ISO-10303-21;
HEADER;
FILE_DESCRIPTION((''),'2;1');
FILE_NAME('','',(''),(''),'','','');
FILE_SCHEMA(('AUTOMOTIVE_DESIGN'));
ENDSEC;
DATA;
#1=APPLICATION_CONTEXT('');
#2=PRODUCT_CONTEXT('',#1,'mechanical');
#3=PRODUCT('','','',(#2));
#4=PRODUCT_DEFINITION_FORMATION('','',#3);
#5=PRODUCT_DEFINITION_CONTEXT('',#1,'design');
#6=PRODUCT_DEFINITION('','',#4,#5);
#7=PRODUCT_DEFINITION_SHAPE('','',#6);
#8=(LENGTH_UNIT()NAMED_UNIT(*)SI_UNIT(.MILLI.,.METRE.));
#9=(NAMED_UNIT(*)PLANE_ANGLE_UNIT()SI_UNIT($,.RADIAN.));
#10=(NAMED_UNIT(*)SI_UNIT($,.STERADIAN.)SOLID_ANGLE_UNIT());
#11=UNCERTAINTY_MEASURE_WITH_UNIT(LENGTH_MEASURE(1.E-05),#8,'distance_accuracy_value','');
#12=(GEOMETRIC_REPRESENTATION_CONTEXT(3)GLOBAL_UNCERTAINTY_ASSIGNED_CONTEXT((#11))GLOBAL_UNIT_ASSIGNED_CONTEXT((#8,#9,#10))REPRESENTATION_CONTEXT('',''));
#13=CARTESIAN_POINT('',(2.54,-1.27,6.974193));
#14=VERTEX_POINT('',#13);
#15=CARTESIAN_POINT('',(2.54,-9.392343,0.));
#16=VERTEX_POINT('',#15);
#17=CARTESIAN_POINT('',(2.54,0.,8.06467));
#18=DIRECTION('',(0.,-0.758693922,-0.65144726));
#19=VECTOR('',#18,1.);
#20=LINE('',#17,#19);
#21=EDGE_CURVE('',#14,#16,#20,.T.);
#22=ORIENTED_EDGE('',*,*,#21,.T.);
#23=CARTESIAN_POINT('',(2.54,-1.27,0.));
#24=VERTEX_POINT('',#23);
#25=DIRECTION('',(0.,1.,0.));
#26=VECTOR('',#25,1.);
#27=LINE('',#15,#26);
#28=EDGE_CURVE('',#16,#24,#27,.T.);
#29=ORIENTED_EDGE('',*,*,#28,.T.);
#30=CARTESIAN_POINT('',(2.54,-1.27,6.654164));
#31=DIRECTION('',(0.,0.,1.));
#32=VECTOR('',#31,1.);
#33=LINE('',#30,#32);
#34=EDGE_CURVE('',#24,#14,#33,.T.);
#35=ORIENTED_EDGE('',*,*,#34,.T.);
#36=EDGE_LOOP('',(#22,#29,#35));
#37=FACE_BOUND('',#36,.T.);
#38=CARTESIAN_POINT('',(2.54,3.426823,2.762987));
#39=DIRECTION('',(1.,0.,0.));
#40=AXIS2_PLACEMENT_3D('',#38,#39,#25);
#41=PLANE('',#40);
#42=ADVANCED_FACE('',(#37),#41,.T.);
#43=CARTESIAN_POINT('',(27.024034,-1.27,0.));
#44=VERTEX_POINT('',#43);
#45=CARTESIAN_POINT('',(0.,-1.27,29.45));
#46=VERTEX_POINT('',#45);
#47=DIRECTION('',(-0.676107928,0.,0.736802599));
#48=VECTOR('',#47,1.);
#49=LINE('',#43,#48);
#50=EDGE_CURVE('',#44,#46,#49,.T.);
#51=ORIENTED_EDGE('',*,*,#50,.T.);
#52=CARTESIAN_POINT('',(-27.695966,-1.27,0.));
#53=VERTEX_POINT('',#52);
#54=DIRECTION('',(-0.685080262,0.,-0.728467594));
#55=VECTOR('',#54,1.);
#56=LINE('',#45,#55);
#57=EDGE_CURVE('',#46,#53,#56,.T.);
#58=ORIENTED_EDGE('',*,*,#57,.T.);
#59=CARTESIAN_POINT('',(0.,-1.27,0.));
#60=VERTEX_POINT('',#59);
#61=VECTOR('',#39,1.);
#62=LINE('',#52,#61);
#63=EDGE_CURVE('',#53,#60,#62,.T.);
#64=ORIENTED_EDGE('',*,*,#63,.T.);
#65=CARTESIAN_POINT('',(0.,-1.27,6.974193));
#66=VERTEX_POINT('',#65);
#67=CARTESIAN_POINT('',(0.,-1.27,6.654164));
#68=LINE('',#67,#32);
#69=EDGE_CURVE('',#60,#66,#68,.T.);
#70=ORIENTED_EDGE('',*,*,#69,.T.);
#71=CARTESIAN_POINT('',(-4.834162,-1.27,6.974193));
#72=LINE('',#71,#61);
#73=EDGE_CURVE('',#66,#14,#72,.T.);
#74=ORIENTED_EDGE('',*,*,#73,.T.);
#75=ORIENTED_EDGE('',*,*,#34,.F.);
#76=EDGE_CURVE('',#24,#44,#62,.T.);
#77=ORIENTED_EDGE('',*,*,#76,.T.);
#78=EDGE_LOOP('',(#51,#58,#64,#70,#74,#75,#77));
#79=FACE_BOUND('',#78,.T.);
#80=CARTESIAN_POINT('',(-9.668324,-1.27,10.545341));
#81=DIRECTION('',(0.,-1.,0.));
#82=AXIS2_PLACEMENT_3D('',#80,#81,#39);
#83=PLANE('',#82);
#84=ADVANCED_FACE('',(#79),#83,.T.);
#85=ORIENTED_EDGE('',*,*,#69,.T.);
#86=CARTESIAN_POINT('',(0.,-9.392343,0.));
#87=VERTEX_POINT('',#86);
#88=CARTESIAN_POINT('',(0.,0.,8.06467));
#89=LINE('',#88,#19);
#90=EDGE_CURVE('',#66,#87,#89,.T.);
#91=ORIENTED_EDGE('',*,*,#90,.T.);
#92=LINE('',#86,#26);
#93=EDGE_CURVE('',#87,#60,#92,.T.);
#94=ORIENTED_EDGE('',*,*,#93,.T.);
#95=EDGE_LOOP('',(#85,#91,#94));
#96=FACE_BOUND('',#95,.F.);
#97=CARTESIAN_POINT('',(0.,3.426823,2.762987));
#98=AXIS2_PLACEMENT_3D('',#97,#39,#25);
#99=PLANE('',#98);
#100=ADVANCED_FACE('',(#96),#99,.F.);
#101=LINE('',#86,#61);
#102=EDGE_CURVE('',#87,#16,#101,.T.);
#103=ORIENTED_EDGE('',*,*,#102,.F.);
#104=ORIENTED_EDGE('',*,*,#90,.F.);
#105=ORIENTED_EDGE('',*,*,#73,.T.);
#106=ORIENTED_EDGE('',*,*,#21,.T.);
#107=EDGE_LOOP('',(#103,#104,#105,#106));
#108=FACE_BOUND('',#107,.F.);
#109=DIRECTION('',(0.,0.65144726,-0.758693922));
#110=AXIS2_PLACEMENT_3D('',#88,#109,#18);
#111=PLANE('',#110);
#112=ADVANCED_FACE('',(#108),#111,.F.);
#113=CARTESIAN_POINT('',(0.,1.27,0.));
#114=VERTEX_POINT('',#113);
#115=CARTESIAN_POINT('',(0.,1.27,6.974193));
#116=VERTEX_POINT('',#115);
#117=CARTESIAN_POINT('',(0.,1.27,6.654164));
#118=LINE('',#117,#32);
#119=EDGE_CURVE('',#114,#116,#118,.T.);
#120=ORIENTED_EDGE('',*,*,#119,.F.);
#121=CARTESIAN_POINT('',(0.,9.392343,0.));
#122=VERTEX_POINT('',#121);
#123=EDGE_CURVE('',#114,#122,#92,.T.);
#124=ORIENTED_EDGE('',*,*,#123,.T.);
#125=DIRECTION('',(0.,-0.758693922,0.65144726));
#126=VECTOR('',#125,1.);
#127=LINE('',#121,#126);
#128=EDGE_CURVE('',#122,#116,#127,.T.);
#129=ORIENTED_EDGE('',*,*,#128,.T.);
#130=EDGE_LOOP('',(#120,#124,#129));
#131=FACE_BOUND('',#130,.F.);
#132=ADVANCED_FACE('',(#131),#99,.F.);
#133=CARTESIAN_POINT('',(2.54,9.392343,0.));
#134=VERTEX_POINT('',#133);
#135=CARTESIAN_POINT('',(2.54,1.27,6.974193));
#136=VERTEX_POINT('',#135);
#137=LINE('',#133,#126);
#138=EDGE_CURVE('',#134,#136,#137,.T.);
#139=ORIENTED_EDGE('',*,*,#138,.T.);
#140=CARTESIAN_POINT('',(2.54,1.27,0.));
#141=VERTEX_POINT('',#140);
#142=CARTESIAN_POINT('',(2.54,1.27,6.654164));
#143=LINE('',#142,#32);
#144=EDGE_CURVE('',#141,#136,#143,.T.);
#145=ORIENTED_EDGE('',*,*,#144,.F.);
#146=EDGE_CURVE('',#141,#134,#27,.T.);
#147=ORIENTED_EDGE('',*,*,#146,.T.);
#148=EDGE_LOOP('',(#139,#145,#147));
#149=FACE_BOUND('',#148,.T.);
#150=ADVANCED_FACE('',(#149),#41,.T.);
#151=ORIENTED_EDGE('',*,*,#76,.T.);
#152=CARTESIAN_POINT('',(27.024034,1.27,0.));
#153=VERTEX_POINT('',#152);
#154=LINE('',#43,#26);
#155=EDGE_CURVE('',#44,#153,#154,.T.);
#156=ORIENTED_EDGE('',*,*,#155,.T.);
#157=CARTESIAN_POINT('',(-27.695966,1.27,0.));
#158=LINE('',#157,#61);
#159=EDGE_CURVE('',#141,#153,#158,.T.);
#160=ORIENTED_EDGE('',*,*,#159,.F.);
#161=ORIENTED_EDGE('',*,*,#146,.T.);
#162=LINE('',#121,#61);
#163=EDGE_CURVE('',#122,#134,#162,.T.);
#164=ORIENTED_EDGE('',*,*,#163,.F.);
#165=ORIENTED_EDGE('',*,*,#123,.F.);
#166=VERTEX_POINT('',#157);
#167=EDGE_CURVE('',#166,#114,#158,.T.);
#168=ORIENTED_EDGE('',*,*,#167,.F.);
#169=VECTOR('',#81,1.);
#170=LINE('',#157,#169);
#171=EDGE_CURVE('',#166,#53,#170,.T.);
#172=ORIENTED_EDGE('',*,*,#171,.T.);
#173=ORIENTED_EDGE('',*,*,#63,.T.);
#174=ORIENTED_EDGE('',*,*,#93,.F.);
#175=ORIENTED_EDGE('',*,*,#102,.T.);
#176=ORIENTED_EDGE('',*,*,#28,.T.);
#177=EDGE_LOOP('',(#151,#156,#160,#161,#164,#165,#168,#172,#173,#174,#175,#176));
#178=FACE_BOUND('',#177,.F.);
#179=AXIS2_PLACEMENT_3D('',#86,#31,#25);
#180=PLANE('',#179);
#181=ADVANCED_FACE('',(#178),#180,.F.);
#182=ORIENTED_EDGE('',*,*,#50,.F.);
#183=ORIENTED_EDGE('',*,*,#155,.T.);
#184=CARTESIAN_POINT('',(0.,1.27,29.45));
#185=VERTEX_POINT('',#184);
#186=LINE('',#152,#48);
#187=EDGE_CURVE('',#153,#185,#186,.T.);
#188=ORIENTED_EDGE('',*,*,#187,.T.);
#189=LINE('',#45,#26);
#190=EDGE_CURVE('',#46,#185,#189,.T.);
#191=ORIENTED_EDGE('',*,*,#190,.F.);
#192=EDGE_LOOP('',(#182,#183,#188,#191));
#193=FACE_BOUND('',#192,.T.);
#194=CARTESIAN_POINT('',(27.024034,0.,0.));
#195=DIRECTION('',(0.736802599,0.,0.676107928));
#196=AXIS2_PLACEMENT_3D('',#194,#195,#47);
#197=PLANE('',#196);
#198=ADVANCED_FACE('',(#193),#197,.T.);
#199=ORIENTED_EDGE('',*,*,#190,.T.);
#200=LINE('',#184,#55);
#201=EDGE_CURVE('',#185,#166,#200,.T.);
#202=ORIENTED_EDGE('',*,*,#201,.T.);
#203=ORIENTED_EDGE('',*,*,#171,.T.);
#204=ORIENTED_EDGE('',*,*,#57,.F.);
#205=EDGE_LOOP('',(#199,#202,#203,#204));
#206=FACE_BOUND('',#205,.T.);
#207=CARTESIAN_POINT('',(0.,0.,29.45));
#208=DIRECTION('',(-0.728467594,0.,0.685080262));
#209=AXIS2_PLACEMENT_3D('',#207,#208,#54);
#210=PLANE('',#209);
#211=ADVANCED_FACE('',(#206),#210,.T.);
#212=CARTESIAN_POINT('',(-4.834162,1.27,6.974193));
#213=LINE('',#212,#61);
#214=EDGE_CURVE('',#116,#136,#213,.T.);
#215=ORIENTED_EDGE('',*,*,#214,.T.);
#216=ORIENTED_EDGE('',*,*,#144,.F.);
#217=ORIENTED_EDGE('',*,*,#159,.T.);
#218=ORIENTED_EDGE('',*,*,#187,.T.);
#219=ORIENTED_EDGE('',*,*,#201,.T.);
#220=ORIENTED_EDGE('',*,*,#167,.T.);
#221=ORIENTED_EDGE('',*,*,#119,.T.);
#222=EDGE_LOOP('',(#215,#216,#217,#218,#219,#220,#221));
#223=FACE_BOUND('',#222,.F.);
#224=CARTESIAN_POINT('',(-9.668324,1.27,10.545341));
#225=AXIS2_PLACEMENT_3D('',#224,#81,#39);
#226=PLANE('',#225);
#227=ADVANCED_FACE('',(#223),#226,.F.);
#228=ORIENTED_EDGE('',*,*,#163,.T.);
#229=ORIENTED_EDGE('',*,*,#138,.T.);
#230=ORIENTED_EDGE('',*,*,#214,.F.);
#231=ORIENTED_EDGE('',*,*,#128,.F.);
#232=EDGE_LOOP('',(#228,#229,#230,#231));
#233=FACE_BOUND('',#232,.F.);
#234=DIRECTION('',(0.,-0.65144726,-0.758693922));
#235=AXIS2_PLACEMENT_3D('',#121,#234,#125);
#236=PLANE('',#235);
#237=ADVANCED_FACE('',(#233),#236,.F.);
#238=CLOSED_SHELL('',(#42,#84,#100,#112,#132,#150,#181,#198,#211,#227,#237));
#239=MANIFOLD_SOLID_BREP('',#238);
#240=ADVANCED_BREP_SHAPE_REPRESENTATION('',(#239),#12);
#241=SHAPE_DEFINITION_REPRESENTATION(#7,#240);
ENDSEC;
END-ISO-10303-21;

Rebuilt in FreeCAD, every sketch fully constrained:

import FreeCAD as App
import Part
import Sketcher
Q = App.Units.Quantity

doc = App.newDocument("Part")
body = doc.addObject("PartDesign::Body", "Body")

sketch1 = body.newObject("Sketcher::SketchObject", "Sketch")
sketch1.AttachmentSupport = (doc.getObject("XZ_Plane"), [""])
sketch1.MapMode = "FlatFace"
sketch1.addGeometry([
    Part.LineSegment(App.Vector(0, 29, 0), App.Vector(-28, 0, 0)),
    Part.LineSegment(App.Vector(-28, 0, 0), App.Vector(27, 0, 0)),
    Part.LineSegment(App.Vector(27, 0, 0), App.Vector(0, 29, 0)),
], False)
sketch1.addConstraint([
    Sketcher.Constraint("Coincident", 0, 2, 1, 1),
    Sketcher.Constraint("Coincident", 1, 2, 2, 1),
    Sketcher.Constraint("Coincident", 2, 2, 0, 1),
    Sketcher.Constraint("Horizontal", 1),
    Sketcher.Constraint("PointOnObject", 0, 2, -1),
    Sketcher.Constraint("PointOnObject", 2, 2, -2),
    Sketcher.Constraint("DistanceX", 1, 1, 1, 2, 54.72),
    Sketcher.Constraint("Distance", 2, 39.97),
    Sketcher.Constraint("DistanceY", -1, 1, 2, 2, 29.45),
])
pad1 = body.newObject("PartDesign::Pad", "Pad")
pad1.Profile = sketch1
pad1.Length = Q("0.1 in")
pad1.Midplane = True

sketch2 = body.newObject("Sketcher::SketchObject", "Sketch001")
sketch2.AttachmentSupport = (doc.getObject("YZ_Plane"), [""])
sketch2.MapMode = "FlatFace"
sketch2.addGeometry([
    Part.LineSegment(App.Vector(9, 0, 0), App.Vector(0, 8, 0)),
    Part.LineSegment(App.Vector(0, 8, 0), App.Vector(-9, 0, 0)),
    Part.LineSegment(App.Vector(-9, 0, 0), App.Vector(9, 0, 0)),
], False)
sketch2.addConstraint([
    Sketcher.Constraint("Coincident", 0, 2, 1, 1),
    Sketcher.Constraint("Coincident", 1, 2, 2, 1),
    Sketcher.Constraint("Coincident", 2, 2, 0, 1),
    Sketcher.Constraint("Horizontal", 2),
    Sketcher.Constraint("Symmetric", 1, 2, 2, 2, -1, 1),
    Sketcher.Constraint("PointOnObject", 0, 2, -2),
    Sketcher.Constraint("Distance", 0, 12.379621),
    Sketcher.Constraint("DistanceX", 2, 1, 2, 2, 18.784686),
])
pad2 = body.newObject("PartDesign::Pad", "Pad001")
pad2.Profile = sketch2
pad2.Length = Q("0.1 in")

doc.recompute()
